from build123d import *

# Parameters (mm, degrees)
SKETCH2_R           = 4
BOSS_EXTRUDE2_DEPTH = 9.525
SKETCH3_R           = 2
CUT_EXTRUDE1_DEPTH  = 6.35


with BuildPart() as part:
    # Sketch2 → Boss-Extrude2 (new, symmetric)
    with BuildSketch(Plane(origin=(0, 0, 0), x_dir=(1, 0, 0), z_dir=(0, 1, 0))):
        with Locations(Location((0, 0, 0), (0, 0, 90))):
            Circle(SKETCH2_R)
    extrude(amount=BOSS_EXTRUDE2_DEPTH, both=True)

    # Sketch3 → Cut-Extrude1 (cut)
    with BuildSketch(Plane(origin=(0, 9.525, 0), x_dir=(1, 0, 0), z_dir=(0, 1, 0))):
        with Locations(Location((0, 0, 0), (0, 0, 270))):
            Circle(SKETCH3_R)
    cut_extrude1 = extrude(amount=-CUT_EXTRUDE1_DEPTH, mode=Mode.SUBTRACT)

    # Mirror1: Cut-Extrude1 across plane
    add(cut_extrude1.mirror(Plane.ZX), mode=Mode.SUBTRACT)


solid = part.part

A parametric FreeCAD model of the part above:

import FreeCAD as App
import Part
import Sketcher
Q = App.Units.Quantity

doc = App.newDocument("Part")
body = doc.addObject("PartDesign::Body", "Body")

# Sketch on XZ plane
sketch1 = body.newObject("Sketcher::SketchObject", "Sketch")
sketch1.AttachmentSupport = (doc.getObject("XZ_Plane"), [""])
sketch1.MapMode = "FlatFace"
sketch1.addGeometry(Part.Circle(App.Vector(0, 0, 0), App.Vector(0, 0, 1), 4), False)
sketch1.addConstraint([
    Sketcher.Constraint("Coincident", 0, 3, -1, 1),
    Sketcher.Constraint("Diameter", 0, Q("8 mm")),
])
pad1 = body.newObject("PartDesign::Pad", "Pad")
pad1.Profile = sketch1
pad1.Length = 19.05
pad1.Midplane = True

# Sketch on XZ plane
sketch2 = body.newObject("Sketcher::SketchObject", "Sketch001")
sketch2.AttachmentSupport = (doc.getObject("XZ_Plane"), [""])
sketch2.MapMode = "FlatFace"
sketch2.AttachmentOffset = App.Placement(App.Vector(0, 0, -9.525), App.Rotation())
sketch2.addGeometry(Part.Circle(App.Vector(0, 0, 0), App.Vector(0, 0, 1), 2), False)
sketch2.addConstraint([
    Sketcher.Constraint("Coincident", 0, 3, -1, 1),
    Sketcher.Constraint("Diameter", 0, Q("4 mm")),
])
pocket1 = body.newObject("PartDesign::Pocket", "Pocket")
pocket1.Profile = sketch2
pocket1.Length = 6.35
pocket1.Reversed = True
doc.recompute()

mirrored = body.newObject("PartDesign::Mirrored", "Mirrored")
mirrored.Originals = [pocket1]
mirrored.MirrorPlane = (doc.getObject("XZ_Plane"), [""])
body.Tip = mirrored

doc.recompute()
